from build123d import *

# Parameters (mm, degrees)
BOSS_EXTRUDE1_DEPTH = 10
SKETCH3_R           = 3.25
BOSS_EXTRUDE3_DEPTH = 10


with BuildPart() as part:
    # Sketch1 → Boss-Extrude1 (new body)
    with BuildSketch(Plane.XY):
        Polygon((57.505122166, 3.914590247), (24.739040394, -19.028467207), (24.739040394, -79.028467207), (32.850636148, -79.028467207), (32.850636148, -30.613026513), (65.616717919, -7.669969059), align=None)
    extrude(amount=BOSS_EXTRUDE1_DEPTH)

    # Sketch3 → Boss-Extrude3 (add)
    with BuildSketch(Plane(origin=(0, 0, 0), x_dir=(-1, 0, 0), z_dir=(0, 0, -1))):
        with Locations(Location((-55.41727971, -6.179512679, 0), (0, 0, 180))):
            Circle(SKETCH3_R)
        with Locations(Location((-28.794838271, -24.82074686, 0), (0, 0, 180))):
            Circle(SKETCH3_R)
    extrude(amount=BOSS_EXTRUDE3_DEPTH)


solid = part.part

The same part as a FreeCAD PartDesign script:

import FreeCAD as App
import Part
import Sketcher
Q = App.Units.Quantity

doc = App.newDocument("Part")
body = doc.addObject("PartDesign::Body", "Body")

# Sketch on XY plane
sketch1 = doc.addObject("Sketcher::SketchObject", "Sketch")
body.addObject(sketch1)
sketch1.AttachmentSupport = (doc.XY_Plane, [""])
sketch1.MapMode = "FlatFace"
sketch1.addGeometry(Part.LineSegment(App.Vector(57.505122, 3.91459, 0), App.Vector(24.73904, -19.028467, 0)), False)
sketch1.addGeometry(Part.LineSegment(App.Vector(24.73904, -19.028467, 0), App.Vector(24.73904, -79.028467, 0)), False)
sketch1.addGeometry(Part.LineSegment(App.Vector(24.73904, -79.028467, 0), App.Vector(32.850636, -79.028467, 0)), False)
sketch1.addGeometry(Part.LineSegment(App.Vector(32.850636, -79.028467, 0), App.Vector(32.850636, -30.613027, 0)), False)
sketch1.addGeometry(Part.LineSegment(App.Vector(32.850636, -30.613027, 0), App.Vector(65.616718, -7.669969, 0)), False)
sketch1.addGeometry(Part.LineSegment(App.Vector(65.616718, -7.669969, 0), App.Vector(57.505122, 3.91459, 0)), False)
sketch1.addConstraint(Sketcher.Constraint("Coincident", 0, 2, 1, 1))
sketch1.addConstraint(Sketcher.Constraint("Coincident", 1, 2, 2, 1))
sketch1.addConstraint(Sketcher.Constraint("Coincident", 2, 2, 3, 1))
sketch1.addConstraint(Sketcher.Constraint("Coincident", 3, 2, 4, 1))
sketch1.addConstraint(Sketcher.Constraint("Coincident", 4, 2, 5, 1))
sketch1.addConstraint(Sketcher.Constraint("Coincident", 5, 2, 0, 1))
sketch1.addConstraint(Sketcher.Constraint("Vertical", 1))
sketch1.addConstraint(Sketcher.Constraint("Horizontal", 2))
sketch1.addConstraint(Sketcher.Constraint("Vertical", 3))
sketch1.addConstraint(Sketcher.Constraint("Parallel", 0, 4))
sketch1.addConstraint(Sketcher.Constraint("Perpendicular", 4, 5))
sketch1.addConstraint(Sketcher.Constraint("Equal", 0, 4))
sketch1.addConstraint(Sketcher.Constraint("DistanceY", 1, 2, 1, 1, Q("60 mm")))
sketch1.addConstraint(Sketcher.Constraint("Angle", 0, Q("-145 deg")))
sketch1.addConstraint(Sketcher.Constraint("Distance", 0, Q("40 mm")))
sketch1.addConstraint(Sketcher.Constraint("DistanceY", 3, 1, 3, 2, Q("48.415441 mm")))
sketch1.addConstraint(Sketcher.Constraint("DistanceX", -1, 1, 0, 2, Q("24.73904 mm")))
sketch1.addConstraint(Sketcher.Constraint("DistanceY", 4, 2, -1, 1, Q("7.669969 mm")))
pad1 = doc.addObject("PartDesign::Pad", "Pad")
body.addObject(pad1)
pad1.Profile = sketch1
pad1.Length = 10

# Sketch on XY plane
sketch2 = doc.addObject("Sketcher::SketchObject", "Sketch001")
body.addObject(sketch2)
sketch2.AttachmentSupport = (doc.XY_Plane, [""])
sketch2.MapMode = "FlatFace"
sketch2.addGeometry(Part.Circle(App.Vector(55.41728, -6.179513, 0), App.Vector(0, 0, 1), 3.25), False)
sketch2.addGeometry(Part.Circle(App.Vector(28.794838, -24.820747, 0), App.Vector(0, 0, 1), 3.25), False)
sketch2.addConstraint(Sketcher.Constraint("Equal", 0, 1))
sketch2.addConstraint(Sketcher.Constraint("Diameter", 0, Q("6.5 mm")))
sketch2.addConstraint(Sketcher.Constraint("DistanceX", -1, 1, 0, 3, Q("55.41728 mm")))
sketch2.addConstraint(Sketcher.Constraint("DistanceX", -1, 1, 1, 3, Q("28.794838 mm")))
sketch2.addConstraint(Sketcher.Constraint("DistanceY", 0, 3, -1, 1, Q("6.179513 mm")))
sketch2.addConstraint(Sketcher.Constraint("DistanceY", 1, 3, -1, 1, Q("24.820747 mm")))
pad2 = doc.addObject("PartDesign::Pad", "Pad001")
body.addObject(pad2)
pad2.Profile = sketch2
pad2.Length = 10
pad2.Reversed = True

doc.recompute()
